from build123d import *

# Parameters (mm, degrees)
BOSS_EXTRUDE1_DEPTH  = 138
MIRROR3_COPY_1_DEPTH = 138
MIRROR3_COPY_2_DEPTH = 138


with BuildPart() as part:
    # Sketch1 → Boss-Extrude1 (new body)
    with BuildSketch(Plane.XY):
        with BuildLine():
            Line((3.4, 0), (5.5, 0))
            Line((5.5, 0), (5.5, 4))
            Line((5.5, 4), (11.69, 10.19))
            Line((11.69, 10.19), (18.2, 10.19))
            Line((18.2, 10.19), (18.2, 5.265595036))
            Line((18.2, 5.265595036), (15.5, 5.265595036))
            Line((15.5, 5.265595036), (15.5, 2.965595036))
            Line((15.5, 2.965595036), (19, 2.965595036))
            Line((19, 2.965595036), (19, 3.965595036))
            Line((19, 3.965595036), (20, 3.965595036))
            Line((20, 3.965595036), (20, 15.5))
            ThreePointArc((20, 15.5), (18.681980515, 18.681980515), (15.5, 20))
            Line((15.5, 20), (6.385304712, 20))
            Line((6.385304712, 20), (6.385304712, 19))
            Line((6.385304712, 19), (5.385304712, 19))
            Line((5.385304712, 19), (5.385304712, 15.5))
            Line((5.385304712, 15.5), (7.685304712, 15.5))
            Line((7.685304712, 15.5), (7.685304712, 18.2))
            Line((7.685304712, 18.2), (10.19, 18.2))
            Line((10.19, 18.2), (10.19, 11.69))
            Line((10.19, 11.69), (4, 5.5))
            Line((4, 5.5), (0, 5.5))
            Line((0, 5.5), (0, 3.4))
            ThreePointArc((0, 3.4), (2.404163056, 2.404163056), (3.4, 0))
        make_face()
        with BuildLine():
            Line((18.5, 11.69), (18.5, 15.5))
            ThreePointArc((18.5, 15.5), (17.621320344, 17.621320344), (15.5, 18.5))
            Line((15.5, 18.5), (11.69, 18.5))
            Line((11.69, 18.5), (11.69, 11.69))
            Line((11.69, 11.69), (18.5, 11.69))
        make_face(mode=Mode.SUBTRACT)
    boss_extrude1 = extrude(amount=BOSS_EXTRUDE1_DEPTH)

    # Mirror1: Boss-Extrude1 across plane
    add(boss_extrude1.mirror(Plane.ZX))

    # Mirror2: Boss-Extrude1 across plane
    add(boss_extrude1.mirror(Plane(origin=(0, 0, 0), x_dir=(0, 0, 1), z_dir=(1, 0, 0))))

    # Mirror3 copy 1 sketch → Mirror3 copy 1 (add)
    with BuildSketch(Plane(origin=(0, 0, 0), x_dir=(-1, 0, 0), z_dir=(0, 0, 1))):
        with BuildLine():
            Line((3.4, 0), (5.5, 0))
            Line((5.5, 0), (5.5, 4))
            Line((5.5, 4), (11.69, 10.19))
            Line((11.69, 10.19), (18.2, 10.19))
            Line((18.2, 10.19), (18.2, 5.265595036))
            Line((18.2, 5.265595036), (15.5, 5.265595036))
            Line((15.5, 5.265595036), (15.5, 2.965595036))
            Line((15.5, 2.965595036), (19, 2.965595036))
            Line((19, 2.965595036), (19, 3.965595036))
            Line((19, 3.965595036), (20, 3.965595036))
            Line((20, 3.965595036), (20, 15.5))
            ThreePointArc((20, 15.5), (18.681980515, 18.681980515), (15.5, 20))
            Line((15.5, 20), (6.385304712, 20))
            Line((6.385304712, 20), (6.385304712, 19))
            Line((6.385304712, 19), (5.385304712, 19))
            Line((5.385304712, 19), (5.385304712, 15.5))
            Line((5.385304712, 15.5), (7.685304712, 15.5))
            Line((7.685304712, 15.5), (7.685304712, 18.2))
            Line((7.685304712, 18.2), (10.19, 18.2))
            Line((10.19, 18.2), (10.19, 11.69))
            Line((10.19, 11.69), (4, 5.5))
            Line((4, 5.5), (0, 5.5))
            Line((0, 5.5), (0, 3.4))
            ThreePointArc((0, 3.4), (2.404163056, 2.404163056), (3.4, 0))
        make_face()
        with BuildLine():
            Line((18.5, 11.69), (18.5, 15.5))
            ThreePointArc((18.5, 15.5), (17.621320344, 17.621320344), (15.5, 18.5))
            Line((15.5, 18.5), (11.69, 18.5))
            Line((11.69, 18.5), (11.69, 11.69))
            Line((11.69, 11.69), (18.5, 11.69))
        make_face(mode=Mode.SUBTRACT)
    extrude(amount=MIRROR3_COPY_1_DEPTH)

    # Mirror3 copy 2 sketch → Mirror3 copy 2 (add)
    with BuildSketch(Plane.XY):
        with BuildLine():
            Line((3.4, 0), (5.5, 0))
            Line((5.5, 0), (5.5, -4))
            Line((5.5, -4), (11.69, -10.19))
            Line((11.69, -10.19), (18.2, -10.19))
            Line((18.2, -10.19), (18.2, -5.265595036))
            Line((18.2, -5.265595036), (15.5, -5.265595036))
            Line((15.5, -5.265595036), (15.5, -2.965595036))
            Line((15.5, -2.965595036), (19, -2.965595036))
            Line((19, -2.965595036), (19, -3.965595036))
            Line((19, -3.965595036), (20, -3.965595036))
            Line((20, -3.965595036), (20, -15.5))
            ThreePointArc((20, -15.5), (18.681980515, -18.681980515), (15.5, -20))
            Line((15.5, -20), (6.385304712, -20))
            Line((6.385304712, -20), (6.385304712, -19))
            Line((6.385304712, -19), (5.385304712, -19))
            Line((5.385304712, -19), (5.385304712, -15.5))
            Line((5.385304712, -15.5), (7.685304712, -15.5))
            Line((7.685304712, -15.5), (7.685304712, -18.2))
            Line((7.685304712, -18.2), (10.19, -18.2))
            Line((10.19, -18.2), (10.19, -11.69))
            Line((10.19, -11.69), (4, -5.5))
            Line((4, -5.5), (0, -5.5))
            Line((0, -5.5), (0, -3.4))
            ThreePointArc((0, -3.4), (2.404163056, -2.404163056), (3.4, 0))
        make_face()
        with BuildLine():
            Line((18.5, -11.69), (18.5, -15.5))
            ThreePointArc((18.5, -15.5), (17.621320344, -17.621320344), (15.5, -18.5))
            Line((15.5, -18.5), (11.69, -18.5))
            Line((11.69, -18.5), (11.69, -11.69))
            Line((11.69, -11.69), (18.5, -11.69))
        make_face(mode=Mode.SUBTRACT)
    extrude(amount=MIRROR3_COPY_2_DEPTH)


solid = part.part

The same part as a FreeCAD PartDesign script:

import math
import FreeCAD as App
import Part
import Sketcher
Q = App.Units.Quantity

doc = App.newDocument("Part")
params = doc.addObject("Spreadsheet::Sheet", "Params")
for row, (alias, value) in enumerate([
    ("sketch1_radius", "3 mm"),
    ("sketch1_radius2", "4.5 mm"),
    ("sketch1_radius3", "3.4 mm"),
    ("sketch1_width", "1 mm"),
    ("sketch1_width2", "4 mm"),
    ("pad1_length", "138 mm"),
    ("sketch2_radius", "3 mm"),
    ("sketch2_radius2", "4.5 mm"),
    ("sketch2_radius3", "3.4 mm"),
    ("sketch2_width", "1 mm"),
    ("sketch2_width2", "4 mm"),
    ("pad2_length", "138 mm"),
    ("sketch3_radius", "3 mm"),
    ("sketch3_radius2", "3.4 mm"),
    ("sketch3_radius3", "4.5 mm"),
    ("sketch3_width", "4 mm"),
    ("sketch3_width2", "1 mm"),
    ("pad3_length", "138 mm"),
], start=1):
    params.set(f"A{row}", alias)
    params.set(f"B{row}", "=" + value)
    params.setAlias(f"B{row}", alias)

body = doc.addObject("PartDesign::Body", "Body")

# Sketch on XY plane
sketch1 = body.newObject("Sketcher::SketchObject", "Sketch")
sketch1.AttachmentSupport = (doc.getObject("XY_Plane"), [""])
sketch1.MapMode = "FlatFace"
sketch1.addGeometry([
    Part.LineSegment(App.Vector(3.4, 0, 0), App.Vector(5.5, 0, 0)),  # 0
    Part.LineSegment(App.Vector(5.5, 0, 0), App.Vector(5.5, 4, 0)),  # 1
    Part.LineSegment(App.Vector(5.5, 4, 0), App.Vector(11.7, 10.2, 0)),  # 2
    Part.LineSegment(App.Vector(11.7, 10.2, 0), App.Vector(18.2, 10.2, 0)),  # 3
    Part.LineSegment(App.Vector(18.2, 10.2, 0), App.Vector(18.2, 5.3, 0)),  # 4
    Part.LineSegment(App.Vector(18.2, 5.3, 0), App.Vector(15.5, 5.3, 0)),  # 5
    Part.LineSegment(App.Vector(15.5, 5.3, 0), App.Vector(15.5, 3, 0)),  # 6
    Part.LineSegment(App.Vector(15.5, 3, 0), App.Vector(19, 3, 0)),  # 7
    Part.LineSegment(App.Vector(19, 3, 0), App.Vector(19, 4, 0)),  # 8
    Part.LineSegment(App.Vector(19, 4, 0), App.Vector(20, 4, 0)),  # 9
    Part.LineSegment(App.Vector(20, 4, 0), App.Vector(20, 15.5, 0)),  # 10
    Part.ArcOfCircle(Part.Circle(App.Vector(15.5, 15.5, 0), App.Vector(0, 0, 1), 4.5), math.radians(0), math.radians(90)),  # 11
    Part.LineSegment(App.Vector(15.5, 20, 0), App.Vector(6.4, 20, 0)),  # 12
    Part.LineSegment(App.Vector(6.4, 20, 0), App.Vector(6.4, 19, 0)),  # 13
    Part.LineSegment(App.Vector(6.4, 19, 0), App.Vector(5.4, 19, 0)),  # 14
    Part.LineSegment(App.Vector(5.4, 19, 0), App.Vector(5.4, 15.5, 0)),  # 15
    Part.LineSegment(App.Vector(5.4, 15.5, 0), App.Vector(7.7, 15.5, 0)),  # 16
    Part.LineSegment(App.Vector(7.7, 15.5, 0), App.Vector(7.7, 18.2, 0)),  # 17
    Part.LineSegment(App.Vector(7.7, 18.2, 0), App.Vector(10.2, 18.2, 0)),  # 18
    Part.LineSegment(App.Vector(10.2, 18.2, 0), App.Vector(10.2, 11.7, 0)),  # 19
    Part.LineSegment(App.Vector(10.2, 11.7, 0), App.Vector(4, 5.5, 0)),  # 20
    Part.LineSegment(App.Vector(4, 5.5, 0), App.Vector(0, 5.5, 0)),  # 21
    Part.LineSegment(App.Vector(0, 5.5, 0), App.Vector(0, 3.4, 0)),  # 22
    Part.ArcOfCircle(Part.Circle(App.Vector(0, 0, 0), App.Vector(0, 0, 1), 3.4), math.radians(0), math.radians(90)),  # 23
    Part.LineSegment(App.Vector(18.5, 15.5, 0), App.Vector(18.5, 11.7, 0)),  # 24
    Part.LineSegment(App.Vector(18.5, 11.7, 0), App.Vector(11.7, 11.7, 0)),  # 25
    Part.LineSegment(App.Vector(11.7, 11.7, 0), App.Vector(11.7, 18.5, 0)),  # 26
    Part.LineSegment(App.Vector(11.7, 18.5, 0), App.Vector(15.5, 18.5, 0)),  # 27
    Part.ArcOfCircle(Part.Circle(App.Vector(15.5, 15.5, 0), App.Vector(0, 0, 1), 3), math.radians(0), math.radians(90)),  # 28
], False)
sketch1.addConstraint([
    Sketcher.Constraint("Coincident", 0, 2, 1, 1),
    Sketcher.Constraint("Coincident", 1, 2, 2, 1),
    Sketcher.Constraint("Coincident", 2, 2, 3, 1),
    Sketcher.Constraint("Coincident", 3, 2, 4, 1),
    Sketcher.Constraint("Coincident", 4, 2, 5, 1),
    Sketcher.Constraint("Coincident", 5, 2, 6, 1),
    Sketcher.Constraint("Coincident", 6, 2, 7, 1),
    Sketcher.Constraint("Coincident", 7, 2, 8, 1),
    Sketcher.Constraint("Coincident", 8, 2, 9, 1),
    Sketcher.Constraint("Coincident", 9, 2, 10, 1),
    Sketcher.Constraint("Tangent", 10, 2, 11, 1),
    Sketcher.Constraint("Tangent", 11, 2, 12, 1),
    Sketcher.Constraint("Coincident", 12, 2, 13, 1),
    Sketcher.Constraint("Coincident", 13, 2, 14, 1),
    Sketcher.Constraint("Coincident", 14, 2, 15, 1),
    Sketcher.Constraint("Coincident", 15, 2, 16, 1),
    Sketcher.Constraint("Coincident", 16, 2, 17, 1),
    Sketcher.Constraint("Coincident", 17, 2, 18, 1),
    Sketcher.Constraint("Coincident", 18, 2, 19, 1),
    Sketcher.Constraint("Coincident", 19, 2, 20, 1),
    Sketcher.Constraint("Coincident", 20, 2, 21, 1),
    Sketcher.Constraint("Coincident", 21, 2, 22, 1),
    Sketcher.Constraint("Coincident", 22, 2, 23, 2),
    Sketcher.Constraint("Coincident", 23, 1, 0, 1),
    Sketcher.Constraint("Coincident", 24, 2, 25, 1),
    Sketcher.Constraint("Coincident", 25, 2, 26, 1),
    Sketcher.Constraint("Coincident", 26, 2, 27, 1),
    Sketcher.Constraint("Tangent", 27, 2, 28, 2),
    Sketcher.Constraint("Tangent", 28, 1, 24, 1),
    Sketcher.Constraint("Horizontal", 0),
    Sketcher.Constraint("Vertical", 1),
    Sketcher.Constraint("Horizontal", 3),
    Sketcher.Constraint("Vertical", 4),
    Sketcher.Constraint("Horizontal", 5),
    Sketcher.Constraint("Vertical", 6),
    Sketcher.Constraint("Horizontal", 7),
    Sketcher.Constraint("Vertical", 8),
    Sketcher.Constraint("Horizontal", 9),
    Sketcher.Constraint("Vertical", 10),
    Sketcher.Constraint("Horizontal", 12),
    Sketcher.Constraint("Vertical", 13),
    Sketcher.Constraint("Horizontal", 14),
    Sketcher.Constraint("Vertical", 15),
    Sketcher.Constraint("Horizontal", 16),
    Sketcher.Constraint("Vertical", 17),
    Sketcher.Constraint("Horizontal", 18),
    Sketcher.Constraint("Vertical", 19),
    Sketcher.Constraint("Horizontal", 21),
    Sketcher.Constraint("Vertical", 22),
    Sketcher.Constraint("Vertical", 24),
    Sketcher.Constraint("Horizontal", 25),
    Sketcher.Constraint("Vertical", 26),
    Sketcher.Constraint("Horizontal", 27),
    Sketcher.Constraint("Coincident", 23, 3, -1, 1),
    Sketcher.Constraint("Coincident", 28, 3, 11, 3),
    Sketcher.Constraint("PointOnObject", 0, 2, -1),
    Sketcher.Constraint("PointOnObject", 21, 2, -2),
    Sketcher.Constraint("Parallel", 2, 20),
    Sketcher.Constraint("Horizontal", 10, 2, 15, 2),
    Sketcher.Constraint("Horizontal", 19, 2, 24, 2),
    Sketcher.Constraint("Vertical", 28, 3, 5, 2),
    Sketcher.Constraint("Vertical", 2, 2, 25, 2),
    Sketcher.Constraint("Equal", 9, 14),
    Sketcher.Constraint("Equal", 21, 1),
    Sketcher.Constraint("Equal", 16, 6),
    Sketcher.Constraint("Equal", 14, 8),
    Sketcher.Constraint("Equal", 8, 13),
    Sketcher.Constraint("Equal", 5, 17),
    Sketcher.Constraint("Equal", 3, 19),
    Sketcher.Constraint("Equal", 0, 22),
    Sketcher.Constraint("Equal", 2, 20),
    Sketcher.Constraint("Radius", 28, 3.0),
    Sketcher.Constraint("Radius", 11, 4.5),
    Sketcher.Constraint("Radius", 23, 3.4),
    Sketcher.Constraint("DistanceX", 9, 1, 9, 2, 1.0),
    Sketcher.Constraint("DistanceX", 21, 2, 21, 1, 4.0),
    Sketcher.Constraint("Angle", 2, Q("45 deg")),
    Sketcher.Constraint("DistanceX", 0, 1, 0, 2, 2.1),
    Sketcher.Constraint("DistanceX", 5, 2, 5, 1, 2.7),
    Sketcher.Constraint("DistanceX", 16, 1, 16, 2, 2.3),
    Sketcher.Constraint("DistanceX", -1, 1, 7, 2, 19.0),
    Sketcher.Constraint("DistanceX", 3, 1, 3, 2, 6.51),
    Sketcher.Constraint("DistanceX", 12, 2, 12, 1, 9.114695),
    Sketcher.Constraint("DistanceY", 4, 2, 4, 1, 4.924405),
])
sketch1.setExpression("Constraints[71]", "Params.sketch1_radius")
sketch1.setExpression("Constraints[72]", "Params.sketch1_radius2")
sketch1.setExpression("Constraints[73]", "Params.sketch1_radius3")
sketch1.setExpression("Constraints[74]", "Params.sketch1_width")
sketch1.setExpression("Constraints[75]", "Params.sketch1_width2")
pad1 = body.newObject("PartDesign::Pad", "Pad")
pad1.Profile = sketch1
pad1.setExpression("Length", "Params.pad1_length")
doc.recompute()

mirrored = body.newObject("PartDesign::Mirrored", "Mirrored")
mirrored.Originals = [pad1]
mirrored.MirrorPlane = (doc.getObject("XZ_Plane"), [""])
body.Tip = mirrored
doc.recompute()

mirrored2 = body.newObject("PartDesign::Mirrored", "Mirrored001")
mirrored2.Originals = [pad1]
mirrored2.MirrorPlane = (doc.getObject("YZ_Plane"), [""])
body.Tip = mirrored2

# Sketch on XY plane
sketch2 = body.newObject("Sketcher::SketchObject", "Sketch001")
sketch2.AttachmentSupport = (doc.getObject("XY_Plane"), [""])
sketch2.MapMode = "FlatFace"
sketch2.addGeometry([
    Part.LineSegment(App.Vector(-3.4, 0, 0), App.Vector(-5.5, 0, 0)),  # 0
    Part.LineSegment(App.Vector(-5.5, 0, 0), App.Vector(-5.5, -4, 0)),  # 1
    Part.LineSegment(App.Vector(-5.5, -4, 0), App.Vector(-11.7, -10.2, 0)),  # 2
    Part.LineSegment(App.Vector(-11.7, -10.2, 0), App.Vector(-18.2, -10.2, 0)),  # 3
    Part.LineSegment(App.Vector(-18.2, -10.2, 0), App.Vector(-18.2, -5.3, 0)),  # 4
    Part.LineSegment(App.Vector(-18.2, -5.3, 0), App.Vector(-15.5, -5.3, 0)),  # 5
    Part.LineSegment(App.Vector(-15.5, -5.3, 0), App.Vector(-15.5, -3, 0)),  # 6
    Part.LineSegment(App.Vector(-15.5, -3, 0), App.Vector(-19, -3, 0)),  # 7
    Part.LineSegment(App.Vector(-19, -3, 0), App.Vector(-19, -4, 0)),  # 8
    Part.LineSegment(App.Vector(-19, -4, 0), App.Vector(-20, -4, 0)),  # 9
    Part.LineSegment(App.Vector(-20, -4, 0), App.Vector(-20, -15.5, 0)),  # 10
    Part.ArcOfCircle(Part.Circle(App.Vector(-15.5, -15.5, 0), App.Vector(0, 0, 1), 4.5), math.radians(-180), math.radians(-90)),  # 11
    Part.LineSegment(App.Vector(-15.5, -20, 0), App.Vector(-6.4, -20, 0)),  # 12
    Part.LineSegment(App.Vector(-6.4, -20, 0), App.Vector(-6.4, -19, 0)),  # 13
    Part.LineSegment(App.Vector(-6.4, -19, 0), App.Vector(-5.4, -19, 0)),  # 14
    Part.LineSegment(App.Vector(-5.4, -19, 0), App.Vector(-5.4, -15.5, 0)),  # 15
    Part.LineSegment(App.Vector(-5.4, -15.5, 0), App.Vector(-7.7, -15.5, 0)),  # 16
    Part.LineSegment(App.Vector(-7.7, -15.5, 0), App.Vector(-7.7, -18.2, 0)),  # 17
    Part.LineSegment(App.Vector(-7.7, -18.2, 0), App.Vector(-10.2, -18.2, 0)),  # 18
    Part.LineSegment(App.Vector(-10.2, -18.2, 0), App.Vector(-10.2, -11.7, 0)),  # 19
    Part.LineSegment(App.Vector(-10.2, -11.7, 0), App.Vector(-4, -5.5, 0)),  # 20
    Part.LineSegment(App.Vector(-4, -5.5, 0), App.Vector(0, -5.5, 0)),  # 21
    Part.LineSegment(App.Vector(0, -5.5, 0), App.Vector(0, -3.4, 0)),  # 22
    Part.ArcOfCircle(Part.Circle(App.Vector(0, 0, 0), App.Vector(0, 0, 1), 3.4), math.radians(180), math.radians(270)),  # 23
    Part.LineSegment(App.Vector(-18.5, -15.5, 0), App.Vector(-18.5, -11.7, 0)),  # 24
    Part.LineSegment(App.Vector(-18.5, -11.7, 0), App.Vector(-11.7, -11.7, 0)),  # 25
    Part.LineSegment(App.Vector(-11.7, -11.7, 0), App.Vector(-11.7, -18.5, 0)),  # 26
    Part.LineSegment(App.Vector(-11.7, -18.5, 0), App.Vector(-15.5, -18.5, 0)),  # 27
    Part.ArcOfCircle(Part.Circle(App.Vector(-15.5, -15.5, 0), App.Vector(0, 0, 1), 3), math.radians(180), math.radians(270)),  # 28
], False)
sketch2.addConstraint([
    Sketcher.Constraint("Coincident", 0, 2, 1, 1),
    Sketcher.Constraint("Coincident", 1, 2, 2, 1),
    Sketcher.Constraint("Coincident", 2, 2, 3, 1),
    Sketcher.Constraint("Coincident", 3, 2, 4, 1),
    Sketcher.Constraint("Coincident", 4, 2, 5, 1),
    Sketcher.Constraint("Coincident", 5, 2, 6, 1),
    Sketcher.Constraint("Coincident", 6, 2, 7, 1),
    Sketcher.Constraint("Coincident", 7, 2, 8, 1),
    Sketcher.Constraint("Coincident", 8, 2, 9, 1),
    Sketcher.Constraint("Coincident", 9, 2, 10, 1),
    Sketcher.Constraint("Tangent", 10, 2, 11, 1),
    Sketcher.Constraint("Tangent", 11, 2, 12, 1),
    Sketcher.Constraint("Coincident", 12, 2, 13, 1),
    Sketcher.Constraint("Coincident", 13, 2, 14, 1),
    Sketcher.Constraint("Coincident", 14, 2, 15, 1),
    Sketcher.Constraint("Coincident", 15, 2, 16, 1),
    Sketcher.Constraint("Coincident", 16, 2, 17, 1),
    Sketcher.Constraint("Coincident", 17, 2, 18, 1),
    Sketcher.Constraint("Coincident", 18, 2, 19, 1),
    Sketcher.Constraint("Coincident", 19, 2, 20, 1),
    Sketcher.Constraint("Coincident", 20, 2, 21, 1),
    Sketcher.Constraint("Coincident", 21, 2, 22, 1),
    Sketcher.Constraint("Coincident", 22, 2, 23, 2),
    Sketcher.Constraint("Coincident", 23, 1, 0, 1),
    Sketcher.Constraint("Coincident", 24, 2, 25, 1),
    Sketcher.Constraint("Coincident", 25, 2, 26, 1),
    Sketcher.Constraint("Coincident", 26, 2, 27, 1),
    Sketcher.Constraint("Tangent", 27, 2, 28, 2),
    Sketcher.Constraint("Tangent", 28, 1, 24, 1),
    Sketcher.Constraint("Horizontal", 0),
    Sketcher.Constraint("Vertical", 1),
    Sketcher.Constraint("Horizontal", 3),
    Sketcher.Constraint("Vertical", 4),
    Sketcher.Constraint("Horizontal", 5),
    Sketcher.Constraint("Vertical", 6),
    Sketcher.Constraint("Horizontal", 7),
    Sketcher.Constraint("Vertical", 8),
    Sketcher.Constraint("Horizontal", 9),
    Sketcher.Constraint("Vertical", 10),
    Sketcher.Constraint("Horizontal", 12),
    Sketcher.Constraint("Vertical", 13),
    Sketcher.Constraint("Horizontal", 14),
    Sketcher.Constraint("Vertical", 15),
    Sketcher.Constraint("Horizontal", 16),
    Sketcher.Constraint("Vertical", 17),
    Sketcher.Constraint("Horizontal", 18),
    Sketcher.Constraint("Vertical", 19),
    Sketcher.Constraint("Horizontal", 21),
    Sketcher.Constraint("Vertical", 22),
    Sketcher.Constraint("Vertical", 24),
    Sketcher.Constraint("Horizontal", 25),
    Sketcher.Constraint("Vertical", 26),
    Sketcher.Constraint("Horizontal", 27),
    Sketcher.Constraint("Coincident", 23, 3, -1, 1),
    Sketcher.Constraint("Coincident", 28, 3, 11, 3),
    Sketcher.Constraint("PointOnObject", 0, 2, -1),
    Sketcher.Constraint("PointOnObject", 21, 2, -2),
    Sketcher.Constraint("Parallel", 2, 20),
    Sketcher.Constraint("Horizontal", 10, 2, 15, 2),
    Sketcher.Constraint("Horizontal", 19, 2, 24, 2),
    Sketcher.Constraint("Vertical", 28, 3, 5, 2),
    Sketcher.Constraint("Vertical", 2, 2, 25, 2),
    Sketcher.Constraint("Equal", 9, 14),
    Sketcher.Constraint("Equal", 21, 1),
    Sketcher.Constraint("Equal", 16, 6),
    Sketcher.Constraint("Equal", 14, 8),
    Sketcher.Constraint("Equal", 8, 13),
    Sketcher.Constraint("Equal", 5, 17),
    Sketcher.Constraint("Equal", 3, 19),
    Sketcher.Constraint("Equal", 0, 22),
    Sketcher.Constraint("Equal", 2, 20),
    Sketcher.Constraint("Radius", 28, 3.0),
    Sketcher.Constraint("Radius", 11, 4.5),
    Sketcher.Constraint("Radius", 23, 3.4),
    Sketcher.Constraint("DistanceX", 9, 2, 9, 1, 1.0),
    Sketcher.Constraint("DistanceX", 21, 1, 21, 2, 4.0),
    Sketcher.Constraint("Angle", 2, Q("-135 deg")),
    Sketcher.Constraint("DistanceX", 0, 2, 0, 1, 2.1),
    Sketcher.Constraint("DistanceX", 5, 1, 5, 2, 2.7),
    Sketcher.Constraint("DistanceX", 16, 2, 16, 1, 2.3),
    Sketcher.Constraint("DistanceX", 7, 2, -1, 1, 19.0),
    Sketcher.Constraint("DistanceX", 3, 2, 3, 1, 6.51),
    Sketcher.Constraint("DistanceX", 12, 1, 12, 2, 9.114695),
    Sketcher.Constraint("DistanceY", 4, 1, 4, 2, 4.924405),
])
sketch2.setExpression("Constraints[71]", "Params.sketch2_radius")
sketch2.setExpression("Constraints[72]", "Params.sketch2_radius2")
sketch2.setExpression("Constraints[73]", "Params.sketch2_radius3")
sketch2.setExpression("Constraints[74]", "Params.sketch2_width")
sketch2.setExpression("Constraints[75]", "Params.sketch2_width2")
pad2 = body.newObject("PartDesign::Pad", "Pad001")
pad2.Profile = sketch2
pad2.setExpression("Length", "Params.pad2_length")

# Sketch on XY plane
sketch3 = body.newObject("Sketcher::SketchObject", "Sketch002")
sketch3.AttachmentSupport = (doc.getObject("XY_Plane"), [""])
sketch3.MapMode = "FlatFace"
sketch3.addGeometry([
    Part.LineSegment(App.Vector(5.5, 0, 0), App.Vector(3.4, 0, 0)),  # 0
    Part.ArcOfCircle(Part.Circle(App.Vector(0, 0, 0), App.Vector(0, 0, 1), 3.4), math.radians(-90), math.radians(0)),  # 1
    Part.LineSegment(App.Vector(0, -3.4, 0), App.Vector(0, -5.5, 0)),  # 2
    Part.LineSegment(App.Vector(0, -5.5, 0), App.Vector(4, -5.5, 0)),  # 3
    Part.LineSegment(App.Vector(4, -5.5, 0), App.Vector(10.2, -11.7, 0)),  # 4
    Part.LineSegment(App.Vector(10.2, -11.7, 0), App.Vector(10.2, -18.2, 0)),  # 5
    Part.LineSegment(App.Vector(10.2, -18.2, 0), App.Vector(7.7, -18.2, 0)),  # 6
    Part.LineSegment(App.Vector(7.7, -18.2, 0), App.Vector(7.7, -15.5, 0)),  # 7
    Part.LineSegment(App.Vector(7.7, -15.5, 0), App.Vector(5.4, -15.5, 0)),  # 8
    Part.LineSegment(App.Vector(5.4, -15.5, 0), App.Vector(5.4, -19, 0)),  # 9
    Part.LineSegment(App.Vector(5.4, -19, 0), App.Vector(6.4, -19, 0)),  # 10
    Part.LineSegment(App.Vector(6.4, -19, 0), App.Vector(6.4, -20, 0)),  # 11
    Part.LineSegment(App.Vector(6.4, -20, 0), App.Vector(15.5, -20, 0)),  # 12
    Part.ArcOfCircle(Part.Circle(App.Vector(15.5, -15.5, 0), App.Vector(0, 0, 1), 4.5), math.radians(-90), math.radians(0)),  # 13
    Part.LineSegment(App.Vector(20, -15.5, 0), App.Vector(20, -4, 0)),  # 14
    Part.LineSegment(App.Vector(20, -4, 0), App.Vector(19, -4, 0)),  # 15
    Part.LineSegment(App.Vector(19, -4, 0), App.Vector(19, -3, 0)),  # 16
    Part.LineSegment(App.Vector(19, -3, 0), App.Vector(15.5, -3, 0)),  # 17
    Part.LineSegment(App.Vector(15.5, -3, 0), App.Vector(15.5, -5.3, 0)),  # 18
    Part.LineSegment(App.Vector(15.5, -5.3, 0), App.Vector(18.2, -5.3, 0)),  # 19
    Part.LineSegment(App.Vector(18.2, -5.3, 0), App.Vector(18.2, -10.2, 0)),  # 20
    Part.LineSegment(App.Vector(18.2, -10.2, 0), App.Vector(11.7, -10.2, 0)),  # 21
    Part.LineSegment(App.Vector(11.7, -10.2, 0), App.Vector(5.5, -4, 0)),  # 22
    Part.LineSegment(App.Vector(5.5, -4, 0), App.Vector(5.5, 0, 0)),  # 23
    Part.LineSegment(App.Vector(18.5, -11.7, 0), App.Vector(18.5, -15.5, 0)),  # 24
    Part.ArcOfCircle(Part.Circle(App.Vector(15.5, -15.5, 0), App.Vector(0, 0, 1), 3), math.radians(-90), math.radians(0)),  # 25
    Part.LineSegment(App.Vector(15.5, -18.5, 0), App.Vector(11.7, -18.5, 0)),  # 26
    Part.LineSegment(App.Vector(11.7, -18.5, 0), App.Vector(11.7, -11.7, 0)),  # 27
    Part.LineSegment(App.Vector(11.7, -11.7, 0), App.Vector(18.5, -11.7, 0)),  # 28
], False)
sketch3.addConstraint([
    Sketcher.Constraint("Coincident", 0, 2, 1, 2),
    Sketcher.Constraint("Coincident", 1, 1, 2, 1),
    Sketcher.Constraint("Coincident", 2, 2, 3, 1),
    Sketcher.Constraint("Coincident", 3, 2, 4, 1),
    Sketcher.Constraint("Coincident", 4, 2, 5, 1),
    Sketcher.Constraint("Coincident", 5, 2, 6, 1),
    Sketcher.Constraint("Coincident", 6, 2, 7, 1),
    Sketcher.Constraint("Coincident", 7, 2, 8, 1),
    Sketcher.Constraint("Coincident", 8, 2, 9, 1),
    Sketcher.Constraint("Coincident", 9, 2, 10, 1),
    Sketcher.Constraint("Coincident", 10, 2, 11, 1),
    Sketcher.Constraint("Coincident", 11, 2, 12, 1),
    Sketcher.Constraint("Tangent", 12, 2, 13, 1),
    Sketcher.Constraint("Tangent", 13, 2, 14, 1),
    Sketcher.Constraint("Coincident", 14, 2, 15, 1),
    Sketcher.Constraint("Coincident", 15, 2, 16, 1),
    Sketcher.Constraint("Coincident", 16, 2, 17, 1),
    Sketcher.Constraint("Coincident", 17, 2, 18, 1),
    Sketcher.Constraint("Coincident", 18, 2, 19, 1),
    Sketcher.Constraint("Coincident", 19, 2, 20, 1),
    Sketcher.Constraint("Coincident", 20, 2, 21, 1),
    Sketcher.Constraint("Coincident", 21, 2, 22, 1),
    Sketcher.Constraint("Coincident", 22, 2, 23, 1),
    Sketcher.Constraint("Coincident", 23, 2, 0, 1),
    Sketcher.Constraint("Tangent", 24, 2, 25, 2),
    Sketcher.Constraint("Tangent", 25, 1, 26, 1),
    Sketcher.Constraint("Coincident", 26, 2, 27, 1),
    Sketcher.Constraint("Coincident", 27, 2, 28, 1),
    Sketcher.Constraint("Coincident", 28, 2, 24, 1),
    Sketcher.Constraint("Horizontal", 0),
    Sketcher.Constraint("Vertical", 2),
    Sketcher.Constraint("Horizontal", 3),
    Sketcher.Constraint("Vertical", 5),
    Sketcher.Constraint("Horizontal", 6),
    Sketcher.Constraint("Vertical", 7),
    Sketcher.Constraint("Horizontal", 8),
    Sketcher.Constraint("Vertical", 9),
    Sketcher.Constraint("Horizontal", 10),
    Sketcher.Constraint("Vertical", 11),
    Sketcher.Constraint("Horizontal", 12),
    Sketcher.Constraint("Vertical", 14),
    Sketcher.Constraint("Horizontal", 15),
    Sketcher.Constraint("Vertical", 16),
    Sketcher.Constraint("Horizontal", 17),
    Sketcher.Constraint("Vertical", 18),
    Sketcher.Constraint("Horizontal", 19),
    Sketcher.Constraint("Vertical", 20),
    Sketcher.Constraint("Horizontal", 21),
    Sketcher.Constraint("Vertical", 23),
    Sketcher.Constraint("Vertical", 24),
    Sketcher.Constraint("Horizontal", 26),
    Sketcher.Constraint("Vertical", 27),
    Sketcher.Constraint("Horizontal", 28),
    Sketcher.Constraint("Coincident", 1, 3, -1, 1),
    Sketcher.Constraint("Coincident", 25, 3, 13, 3),
    Sketcher.Constraint("PointOnObject", 0, 2, -1),
    Sketcher.Constraint("PointOnObject", 1, 1, -2),
    Sketcher.Constraint("Parallel", 4, 22),
    Sketcher.Constraint("Horizontal", 25, 3, 7, 2),
    Sketcher.Constraint("Horizontal", 4, 2, 27, 2),
    Sketcher.Constraint("Vertical", 12, 2, 17, 2),
    Sketcher.Constraint("Vertical", 21, 2, 26, 2),
    Sketcher.Constraint("Equal", 10, 15),
    Sketcher.Constraint("Equal", 0, 2),
    Sketcher.Constraint("Equal", 21, 5),
    Sketcher.Constraint("Equal", 19, 7),
    Sketcher.Constraint("Equal", 17, 9),
    Sketcher.Constraint("Equal", 11, 16),
    Sketcher.Constraint("Equal", 8, 18),
    Sketcher.Constraint("Equal", 3, 23),
    Sketcher.Constraint("Equal", 4, 22),
    Sketcher.Constraint("Radius", 25, 3.0),
    Sketcher.Constraint("Radius", 1, 3.4),
    Sketcher.Constraint("Radius", 13, 4.5),
    Sketcher.Constraint("DistanceX", 3, 1, 3, 2, 4.0),
    Sketcher.Constraint("DistanceX", 10, 1, 10, 2, 1.0),
    Sketcher.Constraint("Angle", 4, Q("-45 deg")),
    Sketcher.Constraint("DistanceX", 0, 2, 0, 1, 2.1),
    Sketcher.Constraint("DistanceX", 8, 2, 8, 1, 2.3),
    Sketcher.Constraint("DistanceX", 19, 1, 19, 2, 2.7),
    Sketcher.Constraint("DistanceY", 9, 2, -1, 1, 19.0),
    Sketcher.Constraint("DistanceX", 21, 2, 21, 1, 6.51),
    Sketcher.Constraint("DistanceX", 6, 2, 6, 1, 2.504695),
    Sketcher.Constraint("DistanceY", 14, 1, 14, 2, 11.534405),
])
sketch3.setExpression("Constraints[71]", "Params.sketch3_radius")
sketch3.setExpression("Constraints[72]", "Params.sketch3_radius2")
sketch3.setExpression("Constraints[73]", "Params.sketch3_radius3")
sketch3.setExpression("Constraints[74]", "Params.sketch3_width")
sketch3.setExpression("Constraints[75]", "Params.sketch3_width2")
pad3 = body.newObject("PartDesign::Pad", "Pad002")
pad3.Profile = sketch3
pad3.setExpression("Length", "Params.pad3_length")

doc.recompute()
